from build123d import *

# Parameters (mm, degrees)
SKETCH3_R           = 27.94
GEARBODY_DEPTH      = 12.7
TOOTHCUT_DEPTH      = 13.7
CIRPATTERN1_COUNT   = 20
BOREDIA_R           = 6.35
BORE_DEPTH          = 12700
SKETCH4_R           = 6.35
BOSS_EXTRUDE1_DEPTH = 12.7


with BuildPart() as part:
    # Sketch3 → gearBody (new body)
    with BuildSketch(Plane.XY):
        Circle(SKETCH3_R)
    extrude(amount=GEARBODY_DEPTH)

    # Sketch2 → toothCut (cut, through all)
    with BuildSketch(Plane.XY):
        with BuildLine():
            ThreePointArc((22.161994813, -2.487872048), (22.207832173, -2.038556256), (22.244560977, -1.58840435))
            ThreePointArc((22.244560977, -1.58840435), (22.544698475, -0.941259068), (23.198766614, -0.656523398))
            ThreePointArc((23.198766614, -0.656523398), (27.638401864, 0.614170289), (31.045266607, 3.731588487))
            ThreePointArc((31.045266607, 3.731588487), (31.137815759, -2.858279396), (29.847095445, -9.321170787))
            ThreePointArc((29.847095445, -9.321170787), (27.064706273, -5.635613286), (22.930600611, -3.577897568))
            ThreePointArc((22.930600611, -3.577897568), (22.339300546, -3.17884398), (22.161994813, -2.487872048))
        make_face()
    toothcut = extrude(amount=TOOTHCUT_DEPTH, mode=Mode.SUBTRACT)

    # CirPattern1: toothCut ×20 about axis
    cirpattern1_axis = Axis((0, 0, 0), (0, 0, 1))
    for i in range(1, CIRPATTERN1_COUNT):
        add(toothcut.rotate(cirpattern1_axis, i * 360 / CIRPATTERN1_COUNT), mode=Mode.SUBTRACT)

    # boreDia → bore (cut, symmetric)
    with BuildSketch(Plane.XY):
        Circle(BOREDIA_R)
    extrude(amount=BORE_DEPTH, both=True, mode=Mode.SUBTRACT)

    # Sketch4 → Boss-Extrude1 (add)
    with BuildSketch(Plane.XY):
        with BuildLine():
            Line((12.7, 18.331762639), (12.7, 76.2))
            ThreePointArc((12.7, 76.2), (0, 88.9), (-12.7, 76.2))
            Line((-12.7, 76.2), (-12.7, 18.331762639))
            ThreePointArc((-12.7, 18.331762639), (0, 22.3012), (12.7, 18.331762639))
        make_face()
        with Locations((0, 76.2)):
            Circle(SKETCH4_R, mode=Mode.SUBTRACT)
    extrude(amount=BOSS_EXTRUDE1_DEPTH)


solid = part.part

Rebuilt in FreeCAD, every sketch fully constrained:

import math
import FreeCAD as App
import Part
import Sketcher

V = App.Vector
Q = App.Units.Quantity

doc = App.newDocument("Part")
params = doc.addObject("Spreadsheet::Sheet", "Params")
for row, (alias, value) in enumerate([
    ("sketch1_diameter", "2.2 in"),
    ("pad1_length", "0.5 in"),
    ("sketch2_radius", "0.878 in"),
    ("sketch3_diameter", "0.5 in"),
    ("pocket2_length", "1000 in"),
    ("sketch4_diameter", "0.5 in"),
    ("sketch4_radius", "0.5 in"),
    ("sketch4_radius2", "0.878 in"),
    ("pad2_length", "0.5 in"),
], start=1):
    params.set(f"A{row}", alias)
    params.set(f"B{row}", "=" + value)
    params.setAlias(f"B{row}", alias)

body = doc.addObject("PartDesign::Body", "Body")

# Sketch on XY plane
sketch1 = doc.addObject("Sketcher::SketchObject", "Sketch")
body.addObject(sketch1)
sketch1.AttachmentSupport = (doc.XY_Plane, [""])
sketch1.MapMode = "FlatFace"
sketch1.addGeometry(Part.Circle(V(0, 0, 0), V(0, 0, 1), 28), False)
sketch1.addConstraint(Sketcher.Constraint("Coincident", 0, 3, -1, 1))
sketch1.addConstraint(Sketcher.Constraint("Diameter", 0, Q("2.2 in")))
sketch1.setExpression("Constraints[1]", "Params.sketch1_diameter")
pad1 = doc.addObject("PartDesign::Pad", "Pad")
body.addObject(pad1)
pad1.Profile = sketch1
pad1.setExpression("Length", "Params.pad1_length")

# Sketch on XY plane
sketch2 = doc.addObject("Sketcher::SketchObject", "Sketch001")
body.addObject(sketch2)
sketch2.AttachmentSupport = (doc.XY_Plane, [""])
sketch2.MapMode = "FlatFace"
sketch2.addGeometry(Part.ArcOfCircle(Part.Circle(V(0, 0, 0), V(0, 0, 1), 22.3012), math.radians(-6.405122), math.radians(-4.084354)), False)
sketch2.addGeometry(Part.ArcOfCircle(Part.Circle(V(23.160294, -2.59994, 0), V(0, 0, 1), 1.00457), math.radians(173.594878), math.radians(256.782472)), False)
sketch2.addGeometry(Part.ArcOfCircle(Part.Circle(V(20.626166, -13.389403, 0), V(0, 0, 1), 10.078495), math.radians(23.806853), math.radians(76.782472)), False)
sketch2.addGeometry(Part.ArcOfCircle(Part.Circle(V(0, 0, 0), V(0, 0, 1), 31.268728), math.radians(-17.343449), math.radians(6.853974)), False)
sketch2.addGeometry(Part.ArcOfCircle(Part.Circle(V(22.719075, 9.410549, 0), V(0, 0, 1), 10.078495), math.radians(-87.271947), math.radians(-34.296328)), False)
sketch2.addGeometry(Part.ArcOfCircle(Part.Circle(V(23.24658, -1.659955, 0), V(0, 0, 1), 1.00457), math.radians(92.728053), math.radians(175.915646)), False)
sketch2.addConstraint(Sketcher.Constraint("Tangent", 0, 1, 1, 1))
sketch2.addConstraint(Sketcher.Constraint("Tangent", 1, 2, 2, 2))
sketch2.addConstraint(Sketcher.Constraint("Coincident", 2, 1, 3, 1))
sketch2.addConstraint(Sketcher.Constraint("Coincident", 3, 2, 4, 2))
sketch2.addConstraint(Sketcher.Constraint("Tangent", 4, 1, 5, 1))
sketch2.addConstraint(Sketcher.Constraint("Tangent", 5, 2, 0, 2))
sketch2.addConstraint(Sketcher.Constraint("Coincident", 0, 3, -1, 1))
sketch2.addConstraint(Sketcher.Constraint("Coincident", 3, 3, -1, 1))
sketch2.addConstraint(Sketcher.Constraint("Equal", 2, 4))
sketch2.addConstraint(Sketcher.Constraint("Equal", 1, 5))
sketch2.addConstraint(Sketcher.Constraint("Radius", 0, Q("0.878 in")))
sketch2.addConstraint(Sketcher.Constraint("Radius", 1, Q("1.00457 mm")))
sketch2.addConstraint(Sketcher.Constraint("Radius", 2, Q("10.078495 mm")))
sketch2.addConstraint(Sketcher.Constraint("Radius", 3, Q("31.268728 mm")))
sketch2.addConstraint(Sketcher.Constraint("DistanceX", 0, 1, 5, 3, Q("0.0427002 in")))
sketch2.addConstraint(Sketcher.Constraint("DistanceX", -1, 1, 1, 2, Q("22.930601 mm")))
sketch2.addConstraint(Sketcher.Constraint("DistanceX", 1, 3, 2, 1, Q("6.686801 mm")))
sketch2.addConstraint(Sketcher.Constraint("DistanceX", 4, 1, 3, 2, Q("7.8465 mm")))
sketch2.setExpression("Constraints[10]", "Params.sketch2_radius")
pocket1 = doc.addObject("PartDesign::Pocket", "Pocket")
body.addObject(pocket1)
pocket1.Profile = sketch2
pocket1.Type = "ThroughAll"
pocket1.Reversed = True
doc.recompute()

polarpattern = doc.addObject("PartDesign::PolarPattern", "PolarPattern")
body.addObject(polarpattern)
polarpattern.Originals = [pocket1]
polarpattern.Axis = (doc.Z_Axis, [""])
polarpattern.Angle = 360
polarpattern.Occurrences = 20
body.Tip = polarpattern

# Sketch on XY plane
sketch3 = doc.addObject("Sketcher::SketchObject", "Sketch002")
body.addObject(sketch3)
sketch3.AttachmentSupport = (doc.XY_Plane, [""])
sketch3.MapMode = "FlatFace"
sketch3.addGeometry(Part.Circle(V(0, 0, 0), V(0, 0, 1), 6), False)
sketch3.addConstraint(Sketcher.Constraint("Coincident", 0, 3, -1, 1))
sketch3.addConstraint(Sketcher.Constraint("Diameter", 0, Q("0.5 in")))
sketch3.setExpression("Constraints[1]", "Params.sketch3_diameter")
pocket2 = doc.addObject("PartDesign::Pocket", "Pocket001")
body.addObject(pocket2)
pocket2.Profile = sketch3
pocket2.setExpression("Length", "Params.pocket2_length")
pocket2.Midplane = True

# Sketch on XY plane
sketch4 = doc.addObject("Sketcher::SketchObject", "Sketch003")
body.addObject(sketch4)
sketch4.AttachmentSupport = (doc.XY_Plane, [""])
sketch4.MapMode = "FlatFace"
sketch4.addGeometry(Part.LineSegment(V(13, 18, 0), V(13, 76, 0)), False)
sketch4.addGeometry(Part.ArcOfCircle(Part.Circle(V(0, 76, 0), V(0, 0, 1), 13), math.radians(0), math.radians(180)), False)
sketch4.addGeometry(Part.LineSegment(V(-13, 76, 0), V(-13, 18, 0)), False)
sketch4.addGeometry(Part.ArcOfCircle(Part.Circle(V(0, 0, 0), V(0, 0, 1), 22), math.radians(55), math.radians(125)), False)
sketch4.addGeometry(Part.Circle(V(0, 76, 0), V(0, 0, 1), 6), False)
sketch4.addConstraint(Sketcher.Constraint("Tangent", 0, 2, 1, 1))
sketch4.addConstraint(Sketcher.Constraint("Tangent", 1, 2, 2, 1))
sketch4.addConstraint(Sketcher.Constraint("Coincident", 2, 2, 3, 2))
sketch4.addConstraint(Sketcher.Constraint("Coincident", 3, 1, 0, 1))
sketch4.addConstraint(Sketcher.Constraint("Vertical", 0))
sketch4.addConstraint(Sketcher.Constraint("Vertical", 2))
sketch4.addConstraint(Sketcher.Constraint("Coincident", 3, 3, -1, 1))
sketch4.addConstraint(Sketcher.Constraint("Coincident", 4, 3, 1, 3))
sketch4.addConstraint(Sketcher.Constraint("PointOnObject", 1, 3, -2))
sketch4.addConstraint(Sketcher.Constraint("Diameter", 4, Q("0.5 in")))
sketch4.addConstraint(Sketcher.Constraint("Radius", 1, Q("0.5 in")))
sketch4.addConstraint(Sketcher.Constraint("DistanceY", -1, 1, 1, 3, Q("3 in")))
sketch4.addConstraint(Sketcher.Constraint("Radius", 3, Q("0.878 in")))
sketch4.setExpression("Constraints[9]", "Params.sketch4_diameter")
sketch4.setExpression("Constraints[10]", "Params.sketch4_radius")
sketch4.setExpression("Constraints[12]", "Params.sketch4_radius2")
pad2 = doc.addObject("PartDesign::Pad", "Pad001")
body.addObject(pad2)
pad2.Profile = sketch4
pad2.setExpression("Length", "Params.pad2_length")

doc.recompute()
